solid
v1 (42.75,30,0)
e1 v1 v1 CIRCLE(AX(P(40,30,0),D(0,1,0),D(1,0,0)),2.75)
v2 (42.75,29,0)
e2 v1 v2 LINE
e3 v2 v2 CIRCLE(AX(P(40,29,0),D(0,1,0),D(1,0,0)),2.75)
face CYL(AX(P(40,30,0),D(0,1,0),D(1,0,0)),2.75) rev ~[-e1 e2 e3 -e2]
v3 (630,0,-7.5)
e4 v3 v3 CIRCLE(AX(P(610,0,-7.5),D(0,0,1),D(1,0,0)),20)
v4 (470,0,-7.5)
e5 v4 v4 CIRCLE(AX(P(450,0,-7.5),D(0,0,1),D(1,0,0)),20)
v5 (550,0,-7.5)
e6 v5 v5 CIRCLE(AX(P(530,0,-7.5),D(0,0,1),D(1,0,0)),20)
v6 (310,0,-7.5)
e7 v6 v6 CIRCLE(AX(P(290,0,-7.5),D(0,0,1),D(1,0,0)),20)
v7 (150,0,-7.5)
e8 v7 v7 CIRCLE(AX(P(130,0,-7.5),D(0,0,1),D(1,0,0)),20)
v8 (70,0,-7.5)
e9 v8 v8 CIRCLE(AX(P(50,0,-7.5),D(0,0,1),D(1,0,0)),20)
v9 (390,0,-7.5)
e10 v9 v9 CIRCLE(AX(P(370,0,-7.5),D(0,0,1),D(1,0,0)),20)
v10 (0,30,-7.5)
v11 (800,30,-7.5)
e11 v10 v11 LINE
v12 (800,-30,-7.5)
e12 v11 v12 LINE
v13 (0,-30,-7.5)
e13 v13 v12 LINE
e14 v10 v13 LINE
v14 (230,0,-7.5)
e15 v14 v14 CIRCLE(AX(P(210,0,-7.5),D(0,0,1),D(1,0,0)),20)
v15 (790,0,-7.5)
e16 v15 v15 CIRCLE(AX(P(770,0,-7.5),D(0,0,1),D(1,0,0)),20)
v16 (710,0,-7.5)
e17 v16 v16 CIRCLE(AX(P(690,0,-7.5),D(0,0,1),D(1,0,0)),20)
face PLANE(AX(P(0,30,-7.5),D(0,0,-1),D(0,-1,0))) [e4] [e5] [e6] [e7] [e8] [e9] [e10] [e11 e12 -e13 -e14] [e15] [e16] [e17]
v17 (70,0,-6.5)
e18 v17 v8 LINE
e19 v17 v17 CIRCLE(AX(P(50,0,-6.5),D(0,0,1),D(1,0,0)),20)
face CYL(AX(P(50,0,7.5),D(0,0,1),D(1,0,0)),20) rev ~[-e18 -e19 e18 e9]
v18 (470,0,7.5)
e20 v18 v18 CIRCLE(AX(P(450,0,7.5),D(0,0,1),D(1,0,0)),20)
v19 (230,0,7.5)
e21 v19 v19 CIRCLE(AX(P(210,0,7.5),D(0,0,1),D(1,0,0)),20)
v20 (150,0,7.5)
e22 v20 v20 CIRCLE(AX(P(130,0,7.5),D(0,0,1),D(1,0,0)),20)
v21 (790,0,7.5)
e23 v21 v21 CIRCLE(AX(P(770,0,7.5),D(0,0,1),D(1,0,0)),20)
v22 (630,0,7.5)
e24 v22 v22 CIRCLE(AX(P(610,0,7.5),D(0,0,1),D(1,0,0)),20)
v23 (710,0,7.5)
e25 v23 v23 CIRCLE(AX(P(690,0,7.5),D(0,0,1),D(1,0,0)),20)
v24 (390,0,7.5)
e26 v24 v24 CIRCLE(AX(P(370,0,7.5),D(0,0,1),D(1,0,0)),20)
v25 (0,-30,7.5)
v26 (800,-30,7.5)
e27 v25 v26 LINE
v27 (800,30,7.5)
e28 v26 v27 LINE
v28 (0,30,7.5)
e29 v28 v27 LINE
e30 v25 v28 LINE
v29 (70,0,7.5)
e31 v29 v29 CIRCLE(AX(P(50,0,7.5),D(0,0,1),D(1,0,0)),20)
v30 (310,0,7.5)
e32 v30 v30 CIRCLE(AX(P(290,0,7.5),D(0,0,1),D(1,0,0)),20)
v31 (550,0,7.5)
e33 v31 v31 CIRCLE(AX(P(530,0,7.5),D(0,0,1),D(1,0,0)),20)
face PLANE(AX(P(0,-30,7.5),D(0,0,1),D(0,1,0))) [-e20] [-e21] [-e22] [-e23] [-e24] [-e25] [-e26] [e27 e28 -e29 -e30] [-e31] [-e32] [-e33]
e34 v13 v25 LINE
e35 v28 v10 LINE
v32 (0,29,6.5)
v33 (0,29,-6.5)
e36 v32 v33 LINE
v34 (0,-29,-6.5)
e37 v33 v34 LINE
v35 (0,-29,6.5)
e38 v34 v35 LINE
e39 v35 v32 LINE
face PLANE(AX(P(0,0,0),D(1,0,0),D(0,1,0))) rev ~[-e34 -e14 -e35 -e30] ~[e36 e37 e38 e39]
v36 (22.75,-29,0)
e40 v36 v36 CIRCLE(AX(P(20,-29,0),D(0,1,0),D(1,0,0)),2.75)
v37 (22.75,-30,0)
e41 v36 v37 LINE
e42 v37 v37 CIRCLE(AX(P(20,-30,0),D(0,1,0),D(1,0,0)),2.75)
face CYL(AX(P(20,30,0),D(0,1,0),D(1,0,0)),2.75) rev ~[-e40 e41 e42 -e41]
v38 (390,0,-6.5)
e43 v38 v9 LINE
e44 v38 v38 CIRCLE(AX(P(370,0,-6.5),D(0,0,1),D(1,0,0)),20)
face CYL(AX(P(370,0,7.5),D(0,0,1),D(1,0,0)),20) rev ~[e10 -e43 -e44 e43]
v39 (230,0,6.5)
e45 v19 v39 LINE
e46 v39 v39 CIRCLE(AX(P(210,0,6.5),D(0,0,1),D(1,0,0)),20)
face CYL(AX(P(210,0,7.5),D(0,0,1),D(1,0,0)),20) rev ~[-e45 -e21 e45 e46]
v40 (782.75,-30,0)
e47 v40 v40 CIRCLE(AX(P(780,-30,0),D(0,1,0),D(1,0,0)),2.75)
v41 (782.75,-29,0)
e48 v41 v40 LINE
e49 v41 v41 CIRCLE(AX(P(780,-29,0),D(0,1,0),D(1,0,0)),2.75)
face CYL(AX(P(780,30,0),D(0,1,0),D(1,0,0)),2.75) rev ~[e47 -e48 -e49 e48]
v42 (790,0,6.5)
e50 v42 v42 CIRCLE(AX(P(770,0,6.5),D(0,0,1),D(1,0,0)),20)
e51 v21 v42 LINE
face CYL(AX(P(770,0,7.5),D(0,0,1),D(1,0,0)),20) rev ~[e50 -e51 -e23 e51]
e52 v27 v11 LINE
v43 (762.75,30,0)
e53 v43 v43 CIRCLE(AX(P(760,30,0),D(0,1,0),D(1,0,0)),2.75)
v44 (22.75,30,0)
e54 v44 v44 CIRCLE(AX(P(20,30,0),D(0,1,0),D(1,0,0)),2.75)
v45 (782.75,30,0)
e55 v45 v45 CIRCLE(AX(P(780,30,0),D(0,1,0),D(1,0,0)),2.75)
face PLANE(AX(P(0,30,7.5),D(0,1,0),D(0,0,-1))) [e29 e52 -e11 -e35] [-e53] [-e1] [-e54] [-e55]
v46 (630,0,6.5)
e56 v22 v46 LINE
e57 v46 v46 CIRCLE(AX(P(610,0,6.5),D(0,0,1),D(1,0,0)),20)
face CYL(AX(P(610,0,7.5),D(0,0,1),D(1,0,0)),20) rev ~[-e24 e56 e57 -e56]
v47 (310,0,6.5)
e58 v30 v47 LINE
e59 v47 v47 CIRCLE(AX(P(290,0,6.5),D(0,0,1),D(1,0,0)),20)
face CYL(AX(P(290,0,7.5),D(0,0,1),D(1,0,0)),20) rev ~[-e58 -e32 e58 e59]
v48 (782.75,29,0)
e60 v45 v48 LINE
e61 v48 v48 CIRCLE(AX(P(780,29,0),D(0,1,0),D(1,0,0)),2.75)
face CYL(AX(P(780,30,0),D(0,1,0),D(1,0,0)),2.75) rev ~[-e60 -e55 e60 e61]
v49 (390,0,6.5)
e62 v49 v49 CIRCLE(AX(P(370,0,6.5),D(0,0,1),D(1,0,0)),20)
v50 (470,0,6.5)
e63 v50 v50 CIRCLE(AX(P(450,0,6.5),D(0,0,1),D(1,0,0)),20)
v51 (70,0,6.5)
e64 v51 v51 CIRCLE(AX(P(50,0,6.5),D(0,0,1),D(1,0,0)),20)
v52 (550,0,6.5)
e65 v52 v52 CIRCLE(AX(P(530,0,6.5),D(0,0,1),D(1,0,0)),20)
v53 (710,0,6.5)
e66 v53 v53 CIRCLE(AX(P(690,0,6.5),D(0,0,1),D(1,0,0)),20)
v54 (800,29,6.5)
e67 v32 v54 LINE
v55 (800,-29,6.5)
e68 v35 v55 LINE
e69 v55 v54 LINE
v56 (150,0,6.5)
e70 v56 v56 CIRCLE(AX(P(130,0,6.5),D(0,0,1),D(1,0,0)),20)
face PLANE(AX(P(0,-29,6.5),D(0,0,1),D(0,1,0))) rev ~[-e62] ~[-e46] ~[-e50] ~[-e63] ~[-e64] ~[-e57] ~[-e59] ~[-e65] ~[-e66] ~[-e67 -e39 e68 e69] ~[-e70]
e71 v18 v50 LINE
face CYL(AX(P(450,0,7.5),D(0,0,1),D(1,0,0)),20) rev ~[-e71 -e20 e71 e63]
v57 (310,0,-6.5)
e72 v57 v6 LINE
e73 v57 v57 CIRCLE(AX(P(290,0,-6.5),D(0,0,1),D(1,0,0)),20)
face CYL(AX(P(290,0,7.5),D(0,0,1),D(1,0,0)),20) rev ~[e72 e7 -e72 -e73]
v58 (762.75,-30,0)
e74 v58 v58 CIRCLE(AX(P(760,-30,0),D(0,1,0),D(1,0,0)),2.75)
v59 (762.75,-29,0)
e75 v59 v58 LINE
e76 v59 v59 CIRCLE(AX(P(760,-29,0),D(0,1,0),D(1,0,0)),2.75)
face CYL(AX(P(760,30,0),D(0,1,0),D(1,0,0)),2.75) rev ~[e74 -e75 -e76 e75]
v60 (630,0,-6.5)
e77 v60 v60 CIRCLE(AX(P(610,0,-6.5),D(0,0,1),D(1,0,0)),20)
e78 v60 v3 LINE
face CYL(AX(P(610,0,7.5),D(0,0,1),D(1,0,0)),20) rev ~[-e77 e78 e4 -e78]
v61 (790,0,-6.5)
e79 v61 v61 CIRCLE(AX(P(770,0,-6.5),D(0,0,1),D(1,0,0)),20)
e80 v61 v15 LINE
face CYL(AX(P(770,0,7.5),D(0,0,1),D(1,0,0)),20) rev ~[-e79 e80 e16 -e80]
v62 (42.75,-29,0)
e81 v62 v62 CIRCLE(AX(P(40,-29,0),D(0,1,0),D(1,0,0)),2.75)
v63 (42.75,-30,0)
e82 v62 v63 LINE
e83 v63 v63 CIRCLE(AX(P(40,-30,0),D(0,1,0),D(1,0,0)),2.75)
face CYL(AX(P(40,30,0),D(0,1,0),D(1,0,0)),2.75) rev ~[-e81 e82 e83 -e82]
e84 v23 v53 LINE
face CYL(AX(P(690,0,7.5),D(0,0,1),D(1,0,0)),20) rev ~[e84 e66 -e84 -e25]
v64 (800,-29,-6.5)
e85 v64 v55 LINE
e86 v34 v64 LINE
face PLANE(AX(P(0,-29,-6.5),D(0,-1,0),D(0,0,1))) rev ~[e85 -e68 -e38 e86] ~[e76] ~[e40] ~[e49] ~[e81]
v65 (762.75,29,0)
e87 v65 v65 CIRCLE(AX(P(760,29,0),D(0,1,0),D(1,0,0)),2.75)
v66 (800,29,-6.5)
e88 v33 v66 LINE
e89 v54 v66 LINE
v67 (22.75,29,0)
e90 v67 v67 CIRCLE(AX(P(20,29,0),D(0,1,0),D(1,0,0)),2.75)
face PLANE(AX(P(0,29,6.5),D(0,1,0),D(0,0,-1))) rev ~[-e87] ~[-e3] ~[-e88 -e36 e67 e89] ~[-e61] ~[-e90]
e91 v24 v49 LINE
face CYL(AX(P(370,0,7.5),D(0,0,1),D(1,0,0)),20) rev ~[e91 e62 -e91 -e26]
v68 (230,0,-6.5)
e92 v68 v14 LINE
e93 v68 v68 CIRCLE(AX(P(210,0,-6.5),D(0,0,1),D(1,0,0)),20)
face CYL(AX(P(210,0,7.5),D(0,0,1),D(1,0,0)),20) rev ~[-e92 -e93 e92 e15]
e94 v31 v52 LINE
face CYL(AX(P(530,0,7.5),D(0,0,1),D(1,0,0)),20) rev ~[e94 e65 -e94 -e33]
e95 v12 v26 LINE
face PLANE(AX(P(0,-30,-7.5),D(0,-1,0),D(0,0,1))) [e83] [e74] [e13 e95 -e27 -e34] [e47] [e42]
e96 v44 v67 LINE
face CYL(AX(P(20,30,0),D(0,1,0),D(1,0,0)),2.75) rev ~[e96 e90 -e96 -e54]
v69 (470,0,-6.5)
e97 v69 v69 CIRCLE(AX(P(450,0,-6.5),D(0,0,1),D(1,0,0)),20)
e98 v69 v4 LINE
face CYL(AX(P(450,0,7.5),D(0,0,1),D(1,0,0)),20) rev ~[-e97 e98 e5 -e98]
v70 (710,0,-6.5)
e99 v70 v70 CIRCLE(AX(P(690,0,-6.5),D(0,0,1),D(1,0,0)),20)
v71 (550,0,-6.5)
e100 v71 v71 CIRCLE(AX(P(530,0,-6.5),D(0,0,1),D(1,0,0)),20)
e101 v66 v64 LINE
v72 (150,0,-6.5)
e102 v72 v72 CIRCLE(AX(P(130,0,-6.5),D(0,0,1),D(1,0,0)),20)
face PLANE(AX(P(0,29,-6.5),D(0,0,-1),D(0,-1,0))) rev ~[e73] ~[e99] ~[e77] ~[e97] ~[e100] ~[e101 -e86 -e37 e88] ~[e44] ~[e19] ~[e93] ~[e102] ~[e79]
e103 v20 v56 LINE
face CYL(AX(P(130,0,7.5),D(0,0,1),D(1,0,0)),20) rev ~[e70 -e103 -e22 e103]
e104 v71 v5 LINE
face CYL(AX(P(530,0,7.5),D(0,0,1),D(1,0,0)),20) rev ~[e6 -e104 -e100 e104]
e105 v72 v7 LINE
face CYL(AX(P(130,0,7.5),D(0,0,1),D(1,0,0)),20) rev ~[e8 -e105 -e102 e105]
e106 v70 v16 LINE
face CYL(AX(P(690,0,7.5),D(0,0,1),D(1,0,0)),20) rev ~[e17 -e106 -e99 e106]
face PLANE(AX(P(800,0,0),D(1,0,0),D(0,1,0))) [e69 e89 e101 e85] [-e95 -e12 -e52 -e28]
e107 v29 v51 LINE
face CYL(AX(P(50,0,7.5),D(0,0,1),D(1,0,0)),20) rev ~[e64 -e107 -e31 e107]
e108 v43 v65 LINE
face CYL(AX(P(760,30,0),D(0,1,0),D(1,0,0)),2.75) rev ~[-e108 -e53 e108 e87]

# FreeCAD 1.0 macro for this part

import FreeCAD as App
import Part
import Sketcher
from FreeCAD import Vector


def add_polygon(sketch, points):
    """Adds a closed chain of lines whose ends are joined by coincident constraints."""
    first, n = sketch.GeometryCount, len(points)
    for a, b in zip(points, points[1:] + points[:1]):
        sketch.addGeometry(Part.LineSegment(App.Vector(*a, 0), App.Vector(*b, 0)), False)
    for i in range(n):
        sketch.addConstraint(Sketcher.Constraint("Coincident", first + i, 2, first + (i + 1) % n, 1))

doc = App.newDocument("Part")
body = doc.addObject("PartDesign::Body", "Body")

sketch1 = body.newObject("Sketcher::SketchObject", "Sketch")
sketch1.AttachmentSupport = (doc.getObject("YZ_Plane"), [""])
sketch1.MapMode = "FlatFace"
add_polygon(sketch1, [(30, 8), (-30, 8), (-30, -8), (30, -8)])
add_polygon(sketch1, [(-29, -6), (-29, 6), (29, 6), (29, -6)])
sketch1.addConstraint([
    Sketcher.Constraint("Horizontal", 0),
    Sketcher.Constraint("Vertical", 1),
    Sketcher.Constraint("Horizontal", 2),
    Sketcher.Constraint("Vertical", 3),
    Sketcher.Constraint("Vertical", 4),
    Sketcher.Constraint("Horizontal", 5),
    Sketcher.Constraint("Vertical", 6),
    Sketcher.Constraint("Horizontal", 7),
    Sketcher.Constraint("Symmetric", 0, 2, 2, 2, -1, 1),
    Sketcher.Constraint("Symmetric", 4, 2, 6, 2, -1, 1),
    Sketcher.Constraint("DistanceX", 0, 2, 0, 1, 60.0),
    Sketcher.Constraint("DistanceX", 5, 1, 5, 2, 58.0),
    Sketcher.Constraint("DistanceY", 1, 2, 1, 1, 15.0),
    Sketcher.Constraint("DistanceY", 4, 1, 4, 2, 13.0),
])
pad1 = body.newObject("PartDesign::Pad", "Pad")
pad1.Profile = sketch1
pad1.Length = 800

sketch2 = body.newObject("Sketcher::SketchObject", "Sketch001")
sketch2.AttachmentSupport = (doc.getObject("XZ_Plane"), [""])
sketch2.MapMode = "FlatFace"
sketch2.AttachmentOffset = App.Placement(Vector(0, 0, -30), App.Rotation())
sketch2.addGeometry([
    Part.Circle(Vector(20, 0, 0), Vector(0, 0, 1), 2.8),
    Part.Circle(Vector(780, 0, 0), Vector(0, 0, 1), 2.8),
    Part.Circle(Vector(760, 0, 0), Vector(0, 0, 1), 2.8),
    Part.Circle(Vector(40, 0, 0), Vector(0, 0, 1), 2.8),
], False)
sketch2.addConstraint([
    Sketcher.Constraint("Equal", 0, 1),
    Sketcher.Constraint("Equal", 1, 2),
    Sketcher.Constraint("Equal", 2, 3),
    Sketcher.Constraint("PointOnObject", 0, 3, -1),
    Sketcher.Constraint("PointOnObject", 1, 3, -1),
    Sketcher.Constraint("PointOnObject", 2, 3, -1),
    Sketcher.Constraint("PointOnObject", 3, 3, -1),
    Sketcher.Constraint("Diameter", 0, 5.5),
    Sketcher.Constraint("DistanceX", -1, 1, 0, 3, 20.0),
    Sketcher.Constraint("DistanceX", 2, 3, 1, 3, 20.0),
    Sketcher.Constraint("DistanceX", 0, 3, 3, 3, 20.0),
    Sketcher.Constraint("DistanceX", -1, 1, 1, 3, 780.0),
])
pocket1 = body.newObject("PartDesign::Pocket", "Pocket")
pocket1.Profile = sketch2
pocket1.Length = 800
pocket1.Reversed = True

sketch3 = body.newObject("Sketcher::SketchObject", "Sketch002")
sketch3.AttachmentSupport = (doc.getObject("XY_Plane"), [""])
sketch3.MapMode = "FlatFace"
sketch3.AttachmentOffset = App.Placement(Vector(0, 0, 7.5), App.Rotation())
sketch3.addGeometry([
    Part.Circle(Vector(50, 0, 0), Vector(0, 0, 1), 20),
    Part.Circle(Vector(130, 0, 0), Vector(0, 0, 1), 20),
    Part.Circle(Vector(210, 0, 0), Vector(0, 0, 1), 20),
    Part.Circle(Vector(290, 0, 0), Vector(0, 0, 1), 20),
    Part.Circle(Vector(370, 0, 0), Vector(0, 0, 1), 20),
    Part.Circle(Vector(450, 0, 0), Vector(0, 0, 1), 20),
    Part.Circle(Vector(530, 0, 0), Vector(0, 0, 1), 20),
    Part.Circle(Vector(610, 0, 0), Vector(0, 0, 1), 20),
    Part.Circle(Vector(690, 0, 0), Vector(0, 0, 1), 20),
    Part.Circle(Vector(770, 0, 0), Vector(0, 0, 1), 20),
], False)
sketch3.addConstraint([
    Sketcher.Constraint("Equal", 0, 1),
    Sketcher.Constraint("Equal", 1, 2),
    Sketcher.Constraint("Equal", 2, 3),
    Sketcher.Constraint("Equal", 3, 4),
    Sketcher.Constraint("Equal", 4, 5),
    Sketcher.Constraint("Equal", 5, 6),
    Sketcher.Constraint("Equal", 6, 7),
    Sketcher.Constraint("Equal", 7, 8),
    Sketcher.Constraint("Equal", 8, 9),
    Sketcher.Constraint("PointOnObject", 0, 3, -1),
    Sketcher.Constraint("PointOnObject", 1, 3, -1),
    Sketcher.Constraint("PointOnObject", 2, 3, -1),
    Sketcher.Constraint("PointOnObject", 3, 3, -1),
    Sketcher.Constraint("PointOnObject", 4, 3, -1),
    Sketcher.Constraint("PointOnObject", 5, 3, -1),
    Sketcher.Constraint("PointOnObject", 6, 3, -1),
    Sketcher.Constraint("PointOnObject", 7, 3, -1),
    Sketcher.Constraint("PointOnObject", 8, 3, -1),
    Sketcher.Constraint("PointOnObject", 9, 3, -1),
    Sketcher.Constraint("Diameter", 0, 40.0),
    Sketcher.Constraint("DistanceX", -1, 1, 0, 3, 50.0),
    Sketcher.Constraint("DistanceX", 0, 3, 1, 3, 80.0),
    Sketcher.Constraint("DistanceX", 1, 3, 2, 3, 80.0),
    Sketcher.Constraint("DistanceX", 2, 3, 3, 3, 80.0),
    Sketcher.Constraint("DistanceX", 3, 3, 4, 3, 80.0),
    Sketcher.Constraint("DistanceX", 4, 3, 5, 3, 80.0),
    Sketcher.Constraint("DistanceX", 5, 3, 6, 3, 80.0),
    Sketcher.Constraint("DistanceX", 6, 3, 7, 3, 80.0),
    Sketcher.Constraint("DistanceX", 7, 3, 8, 3, 80.0),
    Sketcher.Constraint("DistanceX", 8, 3, 9, 3, 80.0),
])
pocket2 = body.newObject("PartDesign::Pocket", "Pocket001")
pocket2.Profile = sketch3
pocket2.Length = 100

doc.recompute()
